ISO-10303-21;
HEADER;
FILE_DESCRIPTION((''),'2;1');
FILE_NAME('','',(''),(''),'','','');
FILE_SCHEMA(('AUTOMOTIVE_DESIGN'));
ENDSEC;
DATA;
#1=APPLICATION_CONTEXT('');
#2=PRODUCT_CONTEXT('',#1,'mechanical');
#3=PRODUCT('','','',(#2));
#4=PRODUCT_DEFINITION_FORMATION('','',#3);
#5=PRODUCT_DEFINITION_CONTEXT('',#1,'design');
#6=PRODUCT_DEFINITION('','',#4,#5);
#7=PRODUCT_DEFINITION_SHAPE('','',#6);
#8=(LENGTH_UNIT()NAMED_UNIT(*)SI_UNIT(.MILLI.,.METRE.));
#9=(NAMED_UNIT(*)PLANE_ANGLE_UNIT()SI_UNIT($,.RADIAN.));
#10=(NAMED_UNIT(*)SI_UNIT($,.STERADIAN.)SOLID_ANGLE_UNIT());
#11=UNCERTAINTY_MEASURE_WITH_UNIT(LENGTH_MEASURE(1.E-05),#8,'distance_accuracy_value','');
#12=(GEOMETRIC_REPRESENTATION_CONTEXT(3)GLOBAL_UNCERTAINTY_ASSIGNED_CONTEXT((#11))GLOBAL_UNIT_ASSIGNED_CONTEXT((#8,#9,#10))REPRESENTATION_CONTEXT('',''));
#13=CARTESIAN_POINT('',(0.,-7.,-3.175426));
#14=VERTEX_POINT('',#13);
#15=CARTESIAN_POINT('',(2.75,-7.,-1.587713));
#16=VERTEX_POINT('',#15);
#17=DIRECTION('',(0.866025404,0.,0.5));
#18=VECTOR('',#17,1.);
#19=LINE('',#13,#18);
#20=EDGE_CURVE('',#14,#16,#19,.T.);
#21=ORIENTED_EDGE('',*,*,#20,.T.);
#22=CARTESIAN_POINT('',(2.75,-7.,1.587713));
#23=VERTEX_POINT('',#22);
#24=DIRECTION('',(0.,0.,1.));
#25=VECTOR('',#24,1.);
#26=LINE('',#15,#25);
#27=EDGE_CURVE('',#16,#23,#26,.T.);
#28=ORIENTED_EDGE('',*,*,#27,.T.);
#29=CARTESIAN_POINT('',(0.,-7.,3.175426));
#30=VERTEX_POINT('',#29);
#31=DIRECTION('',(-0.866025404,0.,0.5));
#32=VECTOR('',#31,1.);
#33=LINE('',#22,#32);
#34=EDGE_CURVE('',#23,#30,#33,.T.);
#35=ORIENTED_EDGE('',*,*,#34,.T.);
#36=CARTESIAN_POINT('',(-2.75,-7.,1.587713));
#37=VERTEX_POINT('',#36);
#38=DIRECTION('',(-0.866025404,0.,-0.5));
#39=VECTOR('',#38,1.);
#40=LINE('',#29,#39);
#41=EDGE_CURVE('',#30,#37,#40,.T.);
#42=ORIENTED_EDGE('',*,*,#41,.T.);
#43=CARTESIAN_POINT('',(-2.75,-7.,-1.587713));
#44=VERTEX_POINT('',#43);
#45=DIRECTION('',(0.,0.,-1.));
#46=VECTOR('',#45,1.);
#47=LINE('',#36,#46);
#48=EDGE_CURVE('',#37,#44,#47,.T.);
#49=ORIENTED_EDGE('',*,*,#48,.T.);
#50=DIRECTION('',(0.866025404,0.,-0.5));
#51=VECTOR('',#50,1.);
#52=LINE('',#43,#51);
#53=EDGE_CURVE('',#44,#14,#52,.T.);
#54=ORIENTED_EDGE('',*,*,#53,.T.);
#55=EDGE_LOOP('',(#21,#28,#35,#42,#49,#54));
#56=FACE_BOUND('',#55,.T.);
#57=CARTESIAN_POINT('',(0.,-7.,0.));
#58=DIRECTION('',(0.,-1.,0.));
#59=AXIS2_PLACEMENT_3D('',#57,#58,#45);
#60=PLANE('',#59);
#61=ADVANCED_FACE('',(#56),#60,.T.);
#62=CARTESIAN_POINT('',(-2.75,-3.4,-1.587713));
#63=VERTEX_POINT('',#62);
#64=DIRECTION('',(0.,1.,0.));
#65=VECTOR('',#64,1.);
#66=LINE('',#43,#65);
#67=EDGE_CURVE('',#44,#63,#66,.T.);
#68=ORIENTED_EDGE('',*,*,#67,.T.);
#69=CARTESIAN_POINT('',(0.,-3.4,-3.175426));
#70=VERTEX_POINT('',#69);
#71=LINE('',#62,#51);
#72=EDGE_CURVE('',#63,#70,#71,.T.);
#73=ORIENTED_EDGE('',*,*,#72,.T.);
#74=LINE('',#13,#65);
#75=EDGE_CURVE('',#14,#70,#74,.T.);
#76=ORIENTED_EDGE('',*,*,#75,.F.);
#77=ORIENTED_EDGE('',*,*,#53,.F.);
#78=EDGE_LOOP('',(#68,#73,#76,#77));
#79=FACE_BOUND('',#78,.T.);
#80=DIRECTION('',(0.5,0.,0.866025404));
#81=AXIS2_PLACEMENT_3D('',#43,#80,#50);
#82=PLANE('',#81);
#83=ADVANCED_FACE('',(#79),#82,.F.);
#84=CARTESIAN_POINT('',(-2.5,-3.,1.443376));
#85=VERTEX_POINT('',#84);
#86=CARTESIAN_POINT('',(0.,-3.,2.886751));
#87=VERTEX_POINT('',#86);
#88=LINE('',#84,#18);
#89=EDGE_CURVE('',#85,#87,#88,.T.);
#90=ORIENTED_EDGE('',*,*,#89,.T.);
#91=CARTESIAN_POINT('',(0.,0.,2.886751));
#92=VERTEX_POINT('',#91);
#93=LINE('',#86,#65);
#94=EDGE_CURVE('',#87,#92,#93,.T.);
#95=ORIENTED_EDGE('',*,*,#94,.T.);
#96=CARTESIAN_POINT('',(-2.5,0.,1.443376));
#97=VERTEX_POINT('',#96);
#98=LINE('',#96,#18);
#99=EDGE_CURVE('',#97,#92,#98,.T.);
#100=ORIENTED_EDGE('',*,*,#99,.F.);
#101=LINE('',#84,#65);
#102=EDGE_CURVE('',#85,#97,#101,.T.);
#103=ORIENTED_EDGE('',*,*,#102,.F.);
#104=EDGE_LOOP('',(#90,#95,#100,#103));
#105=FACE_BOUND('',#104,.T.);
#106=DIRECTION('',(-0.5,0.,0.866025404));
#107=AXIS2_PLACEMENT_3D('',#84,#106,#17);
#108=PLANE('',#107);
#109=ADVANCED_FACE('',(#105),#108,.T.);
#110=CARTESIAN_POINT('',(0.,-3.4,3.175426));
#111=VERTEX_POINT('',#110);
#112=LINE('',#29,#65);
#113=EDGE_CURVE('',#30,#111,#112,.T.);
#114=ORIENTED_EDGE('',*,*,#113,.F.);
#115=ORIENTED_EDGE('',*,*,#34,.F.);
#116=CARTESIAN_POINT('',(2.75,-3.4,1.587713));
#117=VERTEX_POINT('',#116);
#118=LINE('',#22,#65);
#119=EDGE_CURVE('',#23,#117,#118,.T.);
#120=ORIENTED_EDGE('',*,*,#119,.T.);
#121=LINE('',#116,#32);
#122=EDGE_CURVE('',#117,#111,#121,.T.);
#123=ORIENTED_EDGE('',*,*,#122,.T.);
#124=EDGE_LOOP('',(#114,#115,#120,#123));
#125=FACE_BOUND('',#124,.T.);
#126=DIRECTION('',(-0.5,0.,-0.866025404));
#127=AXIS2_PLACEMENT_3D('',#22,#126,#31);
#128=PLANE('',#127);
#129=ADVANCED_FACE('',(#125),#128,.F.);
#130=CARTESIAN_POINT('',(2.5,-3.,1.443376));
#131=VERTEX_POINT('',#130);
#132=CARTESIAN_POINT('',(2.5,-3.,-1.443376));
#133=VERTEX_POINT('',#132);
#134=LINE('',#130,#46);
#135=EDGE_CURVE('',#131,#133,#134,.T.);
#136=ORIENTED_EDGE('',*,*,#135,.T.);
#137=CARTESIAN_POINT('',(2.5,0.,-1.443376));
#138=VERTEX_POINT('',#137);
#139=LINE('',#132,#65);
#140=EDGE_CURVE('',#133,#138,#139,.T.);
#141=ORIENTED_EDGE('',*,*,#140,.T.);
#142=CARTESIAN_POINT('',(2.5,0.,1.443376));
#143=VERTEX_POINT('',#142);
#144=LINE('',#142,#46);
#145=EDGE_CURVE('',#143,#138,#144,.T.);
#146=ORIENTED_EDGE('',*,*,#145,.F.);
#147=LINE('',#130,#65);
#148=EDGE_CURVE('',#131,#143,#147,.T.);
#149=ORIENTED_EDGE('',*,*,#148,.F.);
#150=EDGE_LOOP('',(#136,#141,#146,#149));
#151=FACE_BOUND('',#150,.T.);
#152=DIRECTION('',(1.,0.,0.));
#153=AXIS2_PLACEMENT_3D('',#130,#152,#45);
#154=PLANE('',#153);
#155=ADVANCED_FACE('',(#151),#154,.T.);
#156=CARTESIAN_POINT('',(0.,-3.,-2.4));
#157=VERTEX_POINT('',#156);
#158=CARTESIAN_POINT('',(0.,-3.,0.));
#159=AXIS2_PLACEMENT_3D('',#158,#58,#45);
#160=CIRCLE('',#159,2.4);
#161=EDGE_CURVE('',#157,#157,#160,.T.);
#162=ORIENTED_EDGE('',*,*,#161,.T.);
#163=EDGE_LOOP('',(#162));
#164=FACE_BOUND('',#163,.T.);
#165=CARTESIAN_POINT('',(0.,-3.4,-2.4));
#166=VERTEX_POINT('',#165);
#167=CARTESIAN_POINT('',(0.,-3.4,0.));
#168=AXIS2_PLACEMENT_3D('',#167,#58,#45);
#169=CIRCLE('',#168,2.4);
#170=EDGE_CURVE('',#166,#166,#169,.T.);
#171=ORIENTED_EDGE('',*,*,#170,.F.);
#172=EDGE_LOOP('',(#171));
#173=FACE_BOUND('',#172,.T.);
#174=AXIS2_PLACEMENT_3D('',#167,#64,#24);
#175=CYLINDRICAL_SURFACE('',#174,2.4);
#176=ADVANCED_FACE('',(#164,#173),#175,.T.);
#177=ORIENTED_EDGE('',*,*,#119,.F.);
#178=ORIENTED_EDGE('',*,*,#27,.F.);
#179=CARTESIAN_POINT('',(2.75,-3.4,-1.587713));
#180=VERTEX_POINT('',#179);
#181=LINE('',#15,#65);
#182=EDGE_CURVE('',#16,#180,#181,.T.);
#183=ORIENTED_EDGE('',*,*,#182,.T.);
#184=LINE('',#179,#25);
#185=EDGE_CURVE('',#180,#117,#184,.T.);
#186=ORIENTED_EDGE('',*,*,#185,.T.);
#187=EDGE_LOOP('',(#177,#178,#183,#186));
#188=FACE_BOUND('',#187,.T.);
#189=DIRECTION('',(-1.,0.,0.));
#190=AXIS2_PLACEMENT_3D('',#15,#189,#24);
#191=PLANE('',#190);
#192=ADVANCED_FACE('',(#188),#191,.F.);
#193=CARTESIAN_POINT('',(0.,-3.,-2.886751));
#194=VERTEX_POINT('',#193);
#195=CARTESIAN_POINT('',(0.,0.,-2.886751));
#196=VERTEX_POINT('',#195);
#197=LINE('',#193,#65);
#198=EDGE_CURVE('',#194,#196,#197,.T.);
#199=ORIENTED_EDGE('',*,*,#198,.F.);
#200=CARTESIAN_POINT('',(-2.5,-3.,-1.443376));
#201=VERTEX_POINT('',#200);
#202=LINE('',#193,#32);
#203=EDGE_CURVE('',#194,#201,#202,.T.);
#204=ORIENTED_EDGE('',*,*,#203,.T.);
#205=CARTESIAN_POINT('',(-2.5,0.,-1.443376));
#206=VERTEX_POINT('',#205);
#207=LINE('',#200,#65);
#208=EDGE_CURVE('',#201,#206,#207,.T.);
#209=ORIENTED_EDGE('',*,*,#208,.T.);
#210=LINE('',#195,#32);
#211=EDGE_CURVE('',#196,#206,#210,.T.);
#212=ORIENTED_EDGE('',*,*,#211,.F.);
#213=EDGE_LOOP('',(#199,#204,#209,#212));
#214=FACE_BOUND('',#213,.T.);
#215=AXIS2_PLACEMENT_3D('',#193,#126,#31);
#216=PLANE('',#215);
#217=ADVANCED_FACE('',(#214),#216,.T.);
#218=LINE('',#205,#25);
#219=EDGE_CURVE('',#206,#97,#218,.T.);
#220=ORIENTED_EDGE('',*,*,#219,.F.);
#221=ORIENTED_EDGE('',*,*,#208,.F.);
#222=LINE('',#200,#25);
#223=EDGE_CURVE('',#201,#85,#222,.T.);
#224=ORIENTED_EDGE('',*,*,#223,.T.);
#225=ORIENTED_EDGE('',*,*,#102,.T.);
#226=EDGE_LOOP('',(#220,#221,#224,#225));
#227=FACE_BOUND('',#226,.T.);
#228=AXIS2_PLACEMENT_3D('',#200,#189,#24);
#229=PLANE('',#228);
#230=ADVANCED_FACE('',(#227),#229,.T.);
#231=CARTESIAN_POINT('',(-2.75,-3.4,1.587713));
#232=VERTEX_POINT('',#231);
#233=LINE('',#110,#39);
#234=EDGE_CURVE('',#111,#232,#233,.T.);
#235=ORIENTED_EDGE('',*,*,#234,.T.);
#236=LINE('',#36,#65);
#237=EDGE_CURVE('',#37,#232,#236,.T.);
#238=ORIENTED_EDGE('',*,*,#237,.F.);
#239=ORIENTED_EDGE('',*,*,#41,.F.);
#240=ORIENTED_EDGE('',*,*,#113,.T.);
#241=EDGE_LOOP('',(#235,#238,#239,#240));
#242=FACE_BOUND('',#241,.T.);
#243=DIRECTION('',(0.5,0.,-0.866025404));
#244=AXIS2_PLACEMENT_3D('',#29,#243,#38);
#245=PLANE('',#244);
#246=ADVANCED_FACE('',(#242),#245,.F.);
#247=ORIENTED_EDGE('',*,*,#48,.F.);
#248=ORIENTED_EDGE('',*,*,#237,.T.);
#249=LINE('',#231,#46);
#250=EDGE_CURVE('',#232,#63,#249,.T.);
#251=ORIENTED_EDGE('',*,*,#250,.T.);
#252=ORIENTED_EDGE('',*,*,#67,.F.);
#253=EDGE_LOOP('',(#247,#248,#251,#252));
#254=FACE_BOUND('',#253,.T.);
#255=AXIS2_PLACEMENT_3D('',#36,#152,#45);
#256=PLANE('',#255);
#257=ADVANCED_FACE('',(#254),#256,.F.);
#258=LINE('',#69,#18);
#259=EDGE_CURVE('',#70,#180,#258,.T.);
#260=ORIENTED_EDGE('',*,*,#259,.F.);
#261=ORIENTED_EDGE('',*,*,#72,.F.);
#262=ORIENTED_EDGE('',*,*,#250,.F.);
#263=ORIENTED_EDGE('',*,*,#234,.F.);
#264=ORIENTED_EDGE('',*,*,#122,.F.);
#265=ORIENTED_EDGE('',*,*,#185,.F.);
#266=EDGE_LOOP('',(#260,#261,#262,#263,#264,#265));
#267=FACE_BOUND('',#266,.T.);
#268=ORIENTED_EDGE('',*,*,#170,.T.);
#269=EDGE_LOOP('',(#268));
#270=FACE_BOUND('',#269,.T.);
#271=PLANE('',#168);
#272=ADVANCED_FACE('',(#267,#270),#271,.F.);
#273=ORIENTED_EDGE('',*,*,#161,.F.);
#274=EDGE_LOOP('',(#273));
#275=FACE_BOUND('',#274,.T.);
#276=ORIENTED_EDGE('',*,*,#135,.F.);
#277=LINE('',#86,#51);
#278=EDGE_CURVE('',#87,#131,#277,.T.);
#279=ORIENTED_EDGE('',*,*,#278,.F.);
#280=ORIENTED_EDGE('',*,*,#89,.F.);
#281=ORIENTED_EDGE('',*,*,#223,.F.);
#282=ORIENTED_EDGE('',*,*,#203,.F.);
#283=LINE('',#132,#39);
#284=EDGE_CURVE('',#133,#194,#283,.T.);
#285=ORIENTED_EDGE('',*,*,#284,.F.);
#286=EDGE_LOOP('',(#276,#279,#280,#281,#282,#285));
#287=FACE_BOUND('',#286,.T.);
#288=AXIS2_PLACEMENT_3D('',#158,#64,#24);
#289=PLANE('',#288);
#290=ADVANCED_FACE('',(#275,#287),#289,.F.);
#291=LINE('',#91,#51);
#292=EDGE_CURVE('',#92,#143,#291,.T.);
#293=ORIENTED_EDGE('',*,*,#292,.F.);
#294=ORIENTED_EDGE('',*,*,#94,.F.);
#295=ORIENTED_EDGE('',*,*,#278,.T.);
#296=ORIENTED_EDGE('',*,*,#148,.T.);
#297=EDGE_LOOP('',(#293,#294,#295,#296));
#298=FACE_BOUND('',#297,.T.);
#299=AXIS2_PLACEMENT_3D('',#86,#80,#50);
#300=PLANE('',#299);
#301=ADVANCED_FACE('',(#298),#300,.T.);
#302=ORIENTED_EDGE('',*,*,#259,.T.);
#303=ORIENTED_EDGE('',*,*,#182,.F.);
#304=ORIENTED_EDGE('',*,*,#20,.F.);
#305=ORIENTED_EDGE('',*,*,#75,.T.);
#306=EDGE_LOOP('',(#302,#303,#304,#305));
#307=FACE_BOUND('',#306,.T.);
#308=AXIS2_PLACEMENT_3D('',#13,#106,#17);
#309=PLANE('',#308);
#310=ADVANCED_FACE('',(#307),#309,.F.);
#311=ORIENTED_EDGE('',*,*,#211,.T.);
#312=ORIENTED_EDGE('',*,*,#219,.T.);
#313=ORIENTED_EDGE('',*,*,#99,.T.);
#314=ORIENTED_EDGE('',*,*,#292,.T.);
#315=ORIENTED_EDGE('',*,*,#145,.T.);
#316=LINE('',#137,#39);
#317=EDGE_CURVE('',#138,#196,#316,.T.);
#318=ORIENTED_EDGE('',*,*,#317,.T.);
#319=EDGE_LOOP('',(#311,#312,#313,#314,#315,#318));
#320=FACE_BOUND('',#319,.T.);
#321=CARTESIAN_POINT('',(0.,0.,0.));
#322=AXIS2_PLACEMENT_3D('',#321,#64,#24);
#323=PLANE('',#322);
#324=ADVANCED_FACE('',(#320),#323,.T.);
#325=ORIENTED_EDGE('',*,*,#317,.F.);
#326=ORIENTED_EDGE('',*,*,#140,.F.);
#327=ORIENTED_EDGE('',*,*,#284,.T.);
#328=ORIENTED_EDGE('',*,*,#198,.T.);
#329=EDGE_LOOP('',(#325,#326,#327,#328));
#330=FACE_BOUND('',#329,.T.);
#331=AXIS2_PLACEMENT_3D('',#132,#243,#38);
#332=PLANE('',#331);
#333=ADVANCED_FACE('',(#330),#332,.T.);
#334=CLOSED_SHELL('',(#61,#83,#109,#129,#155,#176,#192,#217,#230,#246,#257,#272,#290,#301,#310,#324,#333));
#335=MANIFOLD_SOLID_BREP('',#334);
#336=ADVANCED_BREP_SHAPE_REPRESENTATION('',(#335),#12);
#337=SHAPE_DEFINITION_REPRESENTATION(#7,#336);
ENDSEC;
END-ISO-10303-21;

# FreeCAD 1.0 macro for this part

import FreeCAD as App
import Part
import Sketcher
from FreeCAD import Vector
Q = App.Units.Quantity


def add_polygon(sketch, points):
    """Adds a closed chain of lines whose ends are joined by coincident constraints."""
    first, n = sketch.GeometryCount, len(points)
    for a, b in zip(points, points[1:] + points[:1]):
        sketch.addGeometry(Part.LineSegment(App.Vector(*a, 0), App.Vector(*b, 0)), False)
    for i in range(n):
        sketch.addConstraint(Sketcher.Constraint("Coincident", first + i, 2, first + (i + 1) % n, 1))

doc = App.newDocument("Part")
body = doc.addObject("PartDesign::Body", "Body")

# Sketch on XZ plane
sketch1 = doc.addObject("Sketcher::SketchObject", "Sketch")
body.addObject(sketch1)
sketch1.AttachmentSupport = (doc.XZ_Plane, [""])
sketch1.MapMode = "FlatFace"
add_polygon(sketch1, [(0, 2.9), (2.5, 1.4), (2.5, -1.4), (0, -2.9), (-2.5, -1.4), (-2.5, 1.4)])  # lines 0-5
sketch1.addConstraint([
    Sketcher.Constraint("Vertical", 1),
    Sketcher.Constraint("Vertical", 4),
    Sketcher.Constraint("Symmetric", 0, 2, 3, 2, -1, 1),
    Sketcher.Constraint("Symmetric", 2, 2, 5, 2, -1, 1),
    Sketcher.Constraint("PointOnObject", 2, 2, -2),
    Sketcher.Constraint("Parallel", 2, 5),
    Sketcher.Constraint("Horizontal", 1, 2, 3, 2),
    Sketcher.Constraint("Angle", 0, Q("-30 deg")),
    Sketcher.Constraint("DistanceX", 3, 2, 1, 2, Q("5 mm")),
    Sketcher.Constraint("DistanceY", 1, 2, 1, 1, Q("2.886751 mm")),
])
pad1 = doc.addObject("PartDesign::Pad", "Pad")
body.addObject(pad1)
pad1.Profile = sketch1
pad1.Length = 3

# Sketch on XZ plane
sketch2 = doc.addObject("Sketcher::SketchObject", "Sketch001")
body.addObject(sketch2)
sketch2.AttachmentSupport = (doc.XZ_Plane, [""])
sketch2.MapMode = "FlatFace"
sketch2.AttachmentOffset = App.Placement(Vector(0, 0, 3), App.Rotation())
sketch2.addGeometry(Part.Circle(Vector(0, 0, 0), Vector(0, 0, 1), 2.4), False)
sketch2.addConstraint([
    Sketcher.Constraint("Coincident", 0, 3, -1, 1),
    Sketcher.Constraint("Diameter", 0, Q("4.8 mm")),
])
pad2 = doc.addObject("PartDesign::Pad", "Pad001")
body.addObject(pad2)
pad2.Profile = sketch2
pad2.Length = 0.4

# Sketch on XZ plane
sketch3 = doc.addObject("Sketcher::SketchObject", "Sketch002")
body.addObject(sketch3)
sketch3.AttachmentSupport = (doc.XZ_Plane, [""])
sketch3.MapMode = "FlatFace"
sketch3.AttachmentOffset = App.Placement(Vector(0, 0, 3.4), App.Rotation())
add_polygon(sketch3, [(0, -3.2), (2.8, -1.6), (2.8, 1.6), (0, 3.2), (-2.8, 1.6), (-2.8, -1.6)])  # lines 0-5
sketch3.addConstraint([
    Sketcher.Constraint("Vertical", 1),
    Sketcher.Constraint("Vertical", 4),
    Sketcher.Constraint("Symmetric", 0, 2, 3, 2, -1, 1),
    Sketcher.Constraint("Symmetric", 2, 2, 5, 2, -1, 1),
    Sketcher.Constraint("PointOnObject", 2, 2, -2),
    Sketcher.Constraint("Parallel", 2, 5),
    Sketcher.Constraint("Horizontal", 1, 2, 3, 2),
    Sketcher.Constraint("Angle", 0, Q("30 deg")),
    Sketcher.Constraint("DistanceX", 3, 2, 1, 2, Q("5.5 mm")),
    Sketcher.Constraint("DistanceY", 1, 1, 1, 2, Q("3.175426 mm")),
])
pad3 = doc.addObject("PartDesign::Pad", "Pad002")
body.addObject(pad3)
pad3.Profile = sketch3
pad3.Length = 3.6

doc.recompute()
